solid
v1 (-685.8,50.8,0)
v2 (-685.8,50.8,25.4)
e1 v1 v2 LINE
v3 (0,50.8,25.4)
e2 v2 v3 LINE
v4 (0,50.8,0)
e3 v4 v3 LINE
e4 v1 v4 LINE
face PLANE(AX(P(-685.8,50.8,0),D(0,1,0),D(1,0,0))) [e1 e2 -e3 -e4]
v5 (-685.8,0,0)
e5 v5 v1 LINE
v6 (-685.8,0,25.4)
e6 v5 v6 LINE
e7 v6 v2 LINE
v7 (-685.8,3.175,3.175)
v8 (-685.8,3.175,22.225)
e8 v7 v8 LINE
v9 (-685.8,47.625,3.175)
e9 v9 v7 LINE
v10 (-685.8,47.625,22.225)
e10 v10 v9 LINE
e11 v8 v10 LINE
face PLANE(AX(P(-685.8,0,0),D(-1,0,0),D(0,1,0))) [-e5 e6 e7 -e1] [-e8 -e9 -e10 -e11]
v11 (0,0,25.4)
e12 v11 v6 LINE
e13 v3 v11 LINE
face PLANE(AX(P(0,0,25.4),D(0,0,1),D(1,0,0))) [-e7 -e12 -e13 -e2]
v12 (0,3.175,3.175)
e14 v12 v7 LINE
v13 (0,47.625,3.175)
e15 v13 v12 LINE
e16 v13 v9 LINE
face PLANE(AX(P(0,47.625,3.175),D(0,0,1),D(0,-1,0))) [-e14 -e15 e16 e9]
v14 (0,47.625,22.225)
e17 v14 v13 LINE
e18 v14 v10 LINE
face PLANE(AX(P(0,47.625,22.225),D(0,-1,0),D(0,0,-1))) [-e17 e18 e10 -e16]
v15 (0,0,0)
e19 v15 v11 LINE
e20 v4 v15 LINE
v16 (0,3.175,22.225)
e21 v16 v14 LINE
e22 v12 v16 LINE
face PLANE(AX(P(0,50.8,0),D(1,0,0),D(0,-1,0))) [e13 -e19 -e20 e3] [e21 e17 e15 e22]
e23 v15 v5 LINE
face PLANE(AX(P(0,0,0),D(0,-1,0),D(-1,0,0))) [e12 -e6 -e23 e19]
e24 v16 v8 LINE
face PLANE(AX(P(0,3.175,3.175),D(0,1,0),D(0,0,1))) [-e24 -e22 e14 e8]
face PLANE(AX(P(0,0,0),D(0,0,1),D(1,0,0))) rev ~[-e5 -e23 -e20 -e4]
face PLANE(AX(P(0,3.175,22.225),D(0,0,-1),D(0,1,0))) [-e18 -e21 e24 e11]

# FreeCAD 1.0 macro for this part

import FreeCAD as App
import Part
import Sketcher
Q = App.Units.Quantity

doc = App.newDocument("Part")
body = doc.addObject("PartDesign::Body", "Body")

# Sketch on XY plane
sketch1 = body.newObject("Sketcher::SketchObject", "Sketch")
sketch1.AttachmentSupport = (doc.getObject("XY_Plane"), [""])
sketch1.MapMode = "FlatFace"
sketch1.addGeometry(Part.LineSegment(App.Vector(-686, 0, 0), App.Vector(0, 0, 0)), False)
sketch1.addGeometry(Part.LineSegment(App.Vector(0, 0, 0), App.Vector(0, 51, 0)), False)
sketch1.addGeometry(Part.LineSegment(App.Vector(0, 51, 0), App.Vector(-686, 51, 0)), False)
sketch1.addGeometry(Part.LineSegment(App.Vector(-686, 51, 0), App.Vector(-686, 0, 0)), False)
sketch1.addConstraint(Sketcher.Constraint("Coincident", 0, 2, 1, 1))
sketch1.addConstraint(Sketcher.Constraint("Coincident", 1, 2, 2, 1))
sketch1.addConstraint(Sketcher.Constraint("Coincident", 2, 2, 3, 1))
sketch1.addConstraint(Sketcher.Constraint("Coincident", 3, 2, 0, 1))
sketch1.addConstraint(Sketcher.Constraint("Horizontal", 0))
sketch1.addConstraint(Sketcher.Constraint("Vertical", 1))
sketch1.addConstraint(Sketcher.Constraint("Horizontal", 2))
sketch1.addConstraint(Sketcher.Constraint("Vertical", 3))
sketch1.addConstraint(Sketcher.Constraint("Coincident", 0, 2, -1, 1))
sketch1.addConstraint(Sketcher.Constraint("DistanceX", 0, 1, 0, 2, Q("27 in")))
sketch1.addConstraint(Sketcher.Constraint("DistanceY", 1, 1, 1, 2, Q("2 in")))
pad1 = body.newObject("PartDesign::Pad", "Pad")
pad1.Profile = sketch1
pad1.Length = Q("1 in")

# Sketch on YZ plane
sketch2 = body.newObject("Sketcher::SketchObject", "Sketch001")
sketch2.AttachmentSupport = (doc.getObject("YZ_Plane"), [""])
sketch2.MapMode = "FlatFace"
sketch2.addGeometry(Part.LineSegment(App.Vector(48, 3, 0), App.Vector(48, 22, 0)), False)
sketch2.addGeometry(Part.LineSegment(App.Vector(48, 22, 0), App.Vector(3, 22, 0)), False)
sketch2.addGeometry(Part.LineSegment(App.Vector(3, 22, 0), App.Vector(3, 3, 0)), False)
sketch2.addGeometry(Part.LineSegment(App.Vector(3, 3, 0), App.Vector(48, 3, 0)), False)
sketch2.addConstraint(Sketcher.Constraint("Coincident", 0, 2, 1, 1))
sketch2.addConstraint(Sketcher.Constraint("Coincident", 1, 2, 2, 1))
sketch2.addConstraint(Sketcher.Constraint("Coincident", 2, 2, 3, 1))
sketch2.addConstraint(Sketcher.Constraint("Coincident", 3, 2, 0, 1))
sketch2.addConstraint(Sketcher.Constraint("Vertical", 0))
sketch2.addConstraint(Sketcher.Constraint("Horizontal", 1))
sketch2.addConstraint(Sketcher.Constraint("Vertical", 2))
sketch2.addConstraint(Sketcher.Constraint("Horizontal", 3))
sketch2.addConstraint(Sketcher.Constraint("DistanceX", -1, 1, 1, 2, Q("0.125 in")))
sketch2.addConstraint(Sketcher.Constraint("DistanceY", -1, 1, 2, 2, Q("0.125 in")))
sketch2.addConstraint(Sketcher.Constraint("DistanceX", 1, 2, 1, 1, Q("1.75 in")))
sketch2.addConstraint(Sketcher.Constraint("DistanceY", 0, 1, 0, 2, Q("0.75 in")))
pocket1 = body.newObject("PartDesign::Pocket", "Pocket")
pocket1.Profile = sketch2
pocket1.Length = Q("27 in")

doc.recompute()
